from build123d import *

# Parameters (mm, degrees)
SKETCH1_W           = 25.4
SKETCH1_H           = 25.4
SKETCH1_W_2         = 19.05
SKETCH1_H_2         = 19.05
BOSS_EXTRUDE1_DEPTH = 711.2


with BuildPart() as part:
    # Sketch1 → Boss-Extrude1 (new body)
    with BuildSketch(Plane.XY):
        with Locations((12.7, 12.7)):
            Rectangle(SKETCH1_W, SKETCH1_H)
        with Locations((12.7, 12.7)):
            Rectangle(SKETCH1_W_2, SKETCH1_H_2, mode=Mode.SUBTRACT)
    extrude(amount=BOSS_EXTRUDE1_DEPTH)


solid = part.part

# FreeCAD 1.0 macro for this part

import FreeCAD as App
import Part
import Sketcher

V = App.Vector
Q = App.Units.Quantity

doc = App.newDocument("Part")
body = doc.addObject("PartDesign::Body", "Body")

sketch1 = body.newObject("Sketcher::SketchObject", "Sketch")
sketch1.AttachmentSupport = (doc.getObject("XY_Plane"), [""])
sketch1.MapMode = "FlatFace"
sketch1.addGeometry([
    Part.LineSegment(V(0, 25, 0), V(0, 0, 0)),
    Part.LineSegment(V(0, 0, 0), V(25, 0, 0)),
    Part.LineSegment(V(25, 0, 0), V(25, 25, 0)),
    Part.LineSegment(V(25, 25, 0), V(0, 25, 0)),
    Part.LineSegment(V(22, 3, 0), V(3, 3, 0)),
    Part.LineSegment(V(3, 3, 0), V(3, 22, 0)),
    Part.LineSegment(V(3, 22, 0), V(22, 22, 0)),
    Part.LineSegment(V(22, 22, 0), V(22, 3, 0)),
], False)
sketch1.addConstraint([
    Sketcher.Constraint("Coincident", 0, 2, 1, 1),
    Sketcher.Constraint("Coincident", 1, 2, 2, 1),
    Sketcher.Constraint("Coincident", 2, 2, 3, 1),
    Sketcher.Constraint("Coincident", 3, 2, 0, 1),
    Sketcher.Constraint("Coincident", 4, 2, 5, 1),
    Sketcher.Constraint("Coincident", 5, 2, 6, 1),
    Sketcher.Constraint("Coincident", 6, 2, 7, 1),
    Sketcher.Constraint("Coincident", 7, 2, 4, 1),
    Sketcher.Constraint("Vertical", 0),
    Sketcher.Constraint("Horizontal", 1),
    Sketcher.Constraint("Vertical", 2),
    Sketcher.Constraint("Horizontal", 3),
    Sketcher.Constraint("Horizontal", 4),
    Sketcher.Constraint("Vertical", 5),
    Sketcher.Constraint("Horizontal", 6),
    Sketcher.Constraint("Vertical", 7),
    Sketcher.Constraint("Coincident", 0, 2, -1, 1),
    Sketcher.Constraint("Equal", 3, 0),
    Sketcher.Constraint("Equal", 6, 5),
    Sketcher.Constraint("DistanceX", 1, 1, 1, 2, Q("1 in")),
    Sketcher.Constraint("DistanceX", 4, 2, 4, 1, Q("0.75 in")),
    Sketcher.Constraint("DistanceX", -1, 1, 4, 2, Q("0.125 in")),
    Sketcher.Constraint("DistanceY", -1, 1, 4, 2, Q("0.125 in")),
])
pad1 = body.newObject("PartDesign::Pad", "Pad")
pad1.Profile = sketch1
pad1.Length = Q("28 in")

doc.recompute()
